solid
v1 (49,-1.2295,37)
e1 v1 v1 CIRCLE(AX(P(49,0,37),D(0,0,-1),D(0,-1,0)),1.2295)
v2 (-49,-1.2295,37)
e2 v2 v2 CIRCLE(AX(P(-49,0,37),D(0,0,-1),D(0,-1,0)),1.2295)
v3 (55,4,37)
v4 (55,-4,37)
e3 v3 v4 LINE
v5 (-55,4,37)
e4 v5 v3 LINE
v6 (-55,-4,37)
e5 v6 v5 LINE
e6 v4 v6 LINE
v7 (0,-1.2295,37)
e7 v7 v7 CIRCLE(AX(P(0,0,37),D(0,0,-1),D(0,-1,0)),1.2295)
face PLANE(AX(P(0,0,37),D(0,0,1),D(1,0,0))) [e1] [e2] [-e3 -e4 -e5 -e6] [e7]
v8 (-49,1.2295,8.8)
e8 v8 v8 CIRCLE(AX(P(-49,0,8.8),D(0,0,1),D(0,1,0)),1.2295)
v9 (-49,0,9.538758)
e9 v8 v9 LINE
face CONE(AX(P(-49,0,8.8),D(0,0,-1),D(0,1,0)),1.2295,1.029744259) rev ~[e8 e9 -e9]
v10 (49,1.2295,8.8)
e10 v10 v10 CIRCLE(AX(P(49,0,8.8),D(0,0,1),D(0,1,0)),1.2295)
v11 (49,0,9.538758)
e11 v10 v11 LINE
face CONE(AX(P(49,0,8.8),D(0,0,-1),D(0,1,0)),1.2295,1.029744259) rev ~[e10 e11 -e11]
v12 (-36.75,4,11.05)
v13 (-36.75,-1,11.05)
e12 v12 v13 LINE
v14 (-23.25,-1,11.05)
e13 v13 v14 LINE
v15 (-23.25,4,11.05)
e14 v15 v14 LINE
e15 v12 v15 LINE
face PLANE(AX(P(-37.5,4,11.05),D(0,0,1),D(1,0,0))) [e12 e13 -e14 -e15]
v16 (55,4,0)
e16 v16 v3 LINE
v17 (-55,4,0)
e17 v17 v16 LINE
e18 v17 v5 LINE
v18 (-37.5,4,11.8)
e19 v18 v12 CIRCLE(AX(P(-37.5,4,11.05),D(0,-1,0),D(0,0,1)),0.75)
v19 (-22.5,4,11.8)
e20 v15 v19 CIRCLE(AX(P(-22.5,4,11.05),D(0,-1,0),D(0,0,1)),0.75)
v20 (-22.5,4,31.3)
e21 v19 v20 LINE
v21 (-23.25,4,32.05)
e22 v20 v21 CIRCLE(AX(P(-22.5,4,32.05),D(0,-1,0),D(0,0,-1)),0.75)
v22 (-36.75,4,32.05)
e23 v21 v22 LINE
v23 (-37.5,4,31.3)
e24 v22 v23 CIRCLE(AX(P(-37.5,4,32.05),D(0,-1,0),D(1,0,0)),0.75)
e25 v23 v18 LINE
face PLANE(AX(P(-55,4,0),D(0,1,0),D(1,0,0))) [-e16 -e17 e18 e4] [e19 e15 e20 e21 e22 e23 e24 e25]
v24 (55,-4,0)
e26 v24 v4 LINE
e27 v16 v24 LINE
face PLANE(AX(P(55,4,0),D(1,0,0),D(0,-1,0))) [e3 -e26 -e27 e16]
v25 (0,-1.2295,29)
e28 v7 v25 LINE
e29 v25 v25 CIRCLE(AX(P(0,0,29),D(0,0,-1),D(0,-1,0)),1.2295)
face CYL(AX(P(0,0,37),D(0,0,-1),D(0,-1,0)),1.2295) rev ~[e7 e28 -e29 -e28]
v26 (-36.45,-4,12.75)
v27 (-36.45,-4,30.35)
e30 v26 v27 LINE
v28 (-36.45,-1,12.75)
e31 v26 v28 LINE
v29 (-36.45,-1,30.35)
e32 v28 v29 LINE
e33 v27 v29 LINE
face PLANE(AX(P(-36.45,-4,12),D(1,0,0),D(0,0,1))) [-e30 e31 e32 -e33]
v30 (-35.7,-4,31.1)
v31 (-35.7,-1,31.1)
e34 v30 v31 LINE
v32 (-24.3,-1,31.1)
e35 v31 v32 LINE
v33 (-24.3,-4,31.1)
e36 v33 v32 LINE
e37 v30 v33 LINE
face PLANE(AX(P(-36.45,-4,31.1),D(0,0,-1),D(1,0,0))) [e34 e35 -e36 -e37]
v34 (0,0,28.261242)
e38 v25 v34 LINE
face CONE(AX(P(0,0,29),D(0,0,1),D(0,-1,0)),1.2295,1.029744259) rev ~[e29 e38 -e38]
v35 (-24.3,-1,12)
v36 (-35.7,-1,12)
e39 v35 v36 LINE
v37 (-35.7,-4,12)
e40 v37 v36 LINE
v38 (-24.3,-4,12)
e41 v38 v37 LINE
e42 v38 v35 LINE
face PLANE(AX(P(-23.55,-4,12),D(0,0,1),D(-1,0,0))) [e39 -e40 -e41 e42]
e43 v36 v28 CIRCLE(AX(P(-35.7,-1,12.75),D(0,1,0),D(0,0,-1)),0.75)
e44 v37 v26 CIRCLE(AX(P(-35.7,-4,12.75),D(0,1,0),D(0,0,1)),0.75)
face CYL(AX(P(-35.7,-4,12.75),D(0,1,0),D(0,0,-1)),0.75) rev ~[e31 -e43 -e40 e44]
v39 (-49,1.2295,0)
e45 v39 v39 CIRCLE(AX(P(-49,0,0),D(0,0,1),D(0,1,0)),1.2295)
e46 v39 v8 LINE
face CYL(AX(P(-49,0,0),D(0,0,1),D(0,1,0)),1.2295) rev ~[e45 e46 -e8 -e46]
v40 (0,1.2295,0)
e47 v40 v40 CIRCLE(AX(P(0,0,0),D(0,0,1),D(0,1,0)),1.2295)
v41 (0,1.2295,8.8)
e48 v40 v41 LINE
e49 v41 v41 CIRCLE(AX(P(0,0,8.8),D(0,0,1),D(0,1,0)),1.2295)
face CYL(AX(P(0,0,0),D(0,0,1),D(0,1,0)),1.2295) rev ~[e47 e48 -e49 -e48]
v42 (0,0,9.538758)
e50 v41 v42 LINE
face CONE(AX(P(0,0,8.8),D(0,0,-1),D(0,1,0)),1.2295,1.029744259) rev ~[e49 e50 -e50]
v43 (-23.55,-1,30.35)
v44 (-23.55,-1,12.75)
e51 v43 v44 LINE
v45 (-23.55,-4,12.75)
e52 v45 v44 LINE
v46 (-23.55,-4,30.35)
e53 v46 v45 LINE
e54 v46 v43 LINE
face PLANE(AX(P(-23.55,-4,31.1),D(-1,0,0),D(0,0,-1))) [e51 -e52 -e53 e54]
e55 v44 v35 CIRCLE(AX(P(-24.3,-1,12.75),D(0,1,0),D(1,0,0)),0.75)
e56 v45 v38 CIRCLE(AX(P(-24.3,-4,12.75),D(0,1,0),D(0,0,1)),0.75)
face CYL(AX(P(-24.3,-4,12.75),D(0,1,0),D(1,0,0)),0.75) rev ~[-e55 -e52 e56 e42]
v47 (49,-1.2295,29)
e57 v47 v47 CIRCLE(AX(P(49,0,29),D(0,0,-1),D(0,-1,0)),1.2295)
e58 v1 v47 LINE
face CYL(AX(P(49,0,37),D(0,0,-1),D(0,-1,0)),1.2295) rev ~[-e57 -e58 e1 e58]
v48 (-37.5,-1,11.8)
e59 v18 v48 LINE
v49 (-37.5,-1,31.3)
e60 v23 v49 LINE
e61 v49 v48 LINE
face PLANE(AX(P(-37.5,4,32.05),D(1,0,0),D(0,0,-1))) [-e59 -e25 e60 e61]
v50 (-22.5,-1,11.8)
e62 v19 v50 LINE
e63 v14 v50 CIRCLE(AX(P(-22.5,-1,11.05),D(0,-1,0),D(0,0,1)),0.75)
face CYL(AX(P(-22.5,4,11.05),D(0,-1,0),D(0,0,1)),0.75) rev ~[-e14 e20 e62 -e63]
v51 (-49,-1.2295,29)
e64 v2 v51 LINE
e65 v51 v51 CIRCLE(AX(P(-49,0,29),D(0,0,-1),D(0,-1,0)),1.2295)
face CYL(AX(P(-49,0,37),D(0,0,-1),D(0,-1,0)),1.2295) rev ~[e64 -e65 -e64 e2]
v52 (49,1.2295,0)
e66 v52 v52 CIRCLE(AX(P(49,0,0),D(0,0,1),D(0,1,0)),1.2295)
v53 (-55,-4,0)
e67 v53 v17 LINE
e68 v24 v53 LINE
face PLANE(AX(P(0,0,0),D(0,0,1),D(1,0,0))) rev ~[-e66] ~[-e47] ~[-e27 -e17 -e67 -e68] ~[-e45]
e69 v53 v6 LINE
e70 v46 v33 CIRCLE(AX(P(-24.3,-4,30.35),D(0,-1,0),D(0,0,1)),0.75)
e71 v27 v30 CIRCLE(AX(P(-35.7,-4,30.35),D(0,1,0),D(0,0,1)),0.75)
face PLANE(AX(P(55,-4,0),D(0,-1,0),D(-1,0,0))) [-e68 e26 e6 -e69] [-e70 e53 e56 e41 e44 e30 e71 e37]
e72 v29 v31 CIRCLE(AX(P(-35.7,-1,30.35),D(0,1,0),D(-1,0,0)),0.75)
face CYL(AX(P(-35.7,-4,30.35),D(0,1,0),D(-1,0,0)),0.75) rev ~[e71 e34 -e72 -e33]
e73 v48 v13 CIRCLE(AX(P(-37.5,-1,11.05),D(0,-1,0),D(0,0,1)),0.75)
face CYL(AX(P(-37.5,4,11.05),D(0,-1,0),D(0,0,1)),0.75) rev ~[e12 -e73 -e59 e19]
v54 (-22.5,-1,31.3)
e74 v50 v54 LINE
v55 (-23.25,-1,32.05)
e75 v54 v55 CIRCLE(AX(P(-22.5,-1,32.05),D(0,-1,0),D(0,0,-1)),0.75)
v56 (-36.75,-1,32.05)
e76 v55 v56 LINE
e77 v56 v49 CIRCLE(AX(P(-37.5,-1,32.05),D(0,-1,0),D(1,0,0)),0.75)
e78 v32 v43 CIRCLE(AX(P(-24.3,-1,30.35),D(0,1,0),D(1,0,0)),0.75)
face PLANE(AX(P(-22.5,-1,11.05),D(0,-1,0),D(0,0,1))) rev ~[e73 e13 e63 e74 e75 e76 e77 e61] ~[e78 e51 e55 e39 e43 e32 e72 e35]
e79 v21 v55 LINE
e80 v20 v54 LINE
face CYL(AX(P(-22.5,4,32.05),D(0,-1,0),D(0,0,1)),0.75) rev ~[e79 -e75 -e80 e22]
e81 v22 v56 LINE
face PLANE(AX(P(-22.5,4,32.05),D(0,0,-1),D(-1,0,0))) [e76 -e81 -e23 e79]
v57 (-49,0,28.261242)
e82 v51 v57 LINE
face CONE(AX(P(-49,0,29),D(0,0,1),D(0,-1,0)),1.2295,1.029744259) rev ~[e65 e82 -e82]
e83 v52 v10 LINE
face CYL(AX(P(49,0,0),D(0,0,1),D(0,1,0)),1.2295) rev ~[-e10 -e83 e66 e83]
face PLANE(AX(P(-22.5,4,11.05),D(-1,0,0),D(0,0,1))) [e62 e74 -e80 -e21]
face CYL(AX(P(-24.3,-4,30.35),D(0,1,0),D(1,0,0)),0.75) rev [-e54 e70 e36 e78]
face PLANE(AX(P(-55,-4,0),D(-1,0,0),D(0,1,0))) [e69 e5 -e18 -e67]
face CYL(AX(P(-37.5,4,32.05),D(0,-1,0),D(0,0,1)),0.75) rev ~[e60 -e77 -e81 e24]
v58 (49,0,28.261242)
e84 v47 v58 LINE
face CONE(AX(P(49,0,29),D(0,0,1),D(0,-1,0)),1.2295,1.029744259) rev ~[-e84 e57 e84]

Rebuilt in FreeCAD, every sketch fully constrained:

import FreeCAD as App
import Part
import Sketcher

V = App.Vector


def edges_at(feature, points):
    """Names of the edges that pass closest to the given points."""
    edges = feature.Shape.Edges
    near = lambda p: min(range(len(edges)), key=lambda i: edges[i].distToShape(Part.Vertex(*p))[0])
    return sorted({f"Edge{near(p) + 1}" for p in points})

doc = App.newDocument("Part")
body = doc.addObject("PartDesign::Body", "Body")

# Sketch on XY plane
sketch1 = body.newObject("Sketcher::SketchObject", "Sketch")
sketch1.AttachmentSupport = (doc.getObject("XY_Plane"), [""])
sketch1.MapMode = "FlatFace"
sketch1.addGeometry(Part.LineSegment(V(55, 4, 0), V(-55, 4, 0)), False)
sketch1.addGeometry(Part.LineSegment(V(-55, 4, 0), V(-55, -4, 0)), False)
sketch1.addGeometry(Part.LineSegment(V(-55, -4, 0), V(55, -4, 0)), False)
sketch1.addGeometry(Part.LineSegment(V(55, -4, 0), V(55, 4, 0)), False)
sketch1.addConstraint(Sketcher.Constraint("Coincident", 0, 2, 1, 1))
sketch1.addConstraint(Sketcher.Constraint("Coincident", 1, 2, 2, 1))
sketch1.addConstraint(Sketcher.Constraint("Coincident", 2, 2, 3, 1))
sketch1.addConstraint(Sketcher.Constraint("Coincident", 3, 2, 0, 1))
sketch1.addConstraint(Sketcher.Constraint("Horizontal", 0))
sketch1.addConstraint(Sketcher.Constraint("Vertical", 1))
sketch1.addConstraint(Sketcher.Constraint("Horizontal", 2))
sketch1.addConstraint(Sketcher.Constraint("Vertical", 3))
sketch1.addConstraint(Sketcher.Constraint("Symmetric", 0, 2, 2, 2, -1, 1))
sketch1.addConstraint(Sketcher.Constraint("DistanceX", 0, 2, 0, 1, 110.0))
sketch1.addConstraint(Sketcher.Constraint("DistanceY", 1, 2, 1, 1, 8.0))
pad1 = body.newObject("PartDesign::Pad", "Pad")
pad1.Profile = sketch1
pad1.Length = 37

# Sketch on XY plane
sketch2 = body.newObject("Sketcher::SketchObject", "Sketch001")
sketch2.AttachmentSupport = (doc.getObject("XY_Plane"), [""])
sketch2.MapMode = "FlatFace"
sketch2.AttachmentOffset = App.Placement(V(0, 0, 37), App.Rotation())
sketch2.addGeometry(Part.Circle(V(-49, 0, 0), V(0, 0, 1), 1.2), False)
sketch2.addGeometry(Part.Circle(V(0, 0, 0), V(0, 0, 1), 1.2), False)
sketch2.addGeometry(Part.Circle(V(49, 0, 0), V(0, 0, 1), 1.2), False)
sketch2.addConstraint(Sketcher.Constraint("Coincident", 1, 3, -1, 1))
sketch2.addConstraint(Sketcher.Constraint("Equal", 0, 1))
sketch2.addConstraint(Sketcher.Constraint("Equal", 1, 2))
sketch2.addConstraint(Sketcher.Constraint("Symmetric", 0, 3, 2, 3, -1, 1))
sketch2.addConstraint(Sketcher.Constraint("PointOnObject", 0, 3, -1))
sketch2.addConstraint(Sketcher.Constraint("Diameter", 0, 2.459))
sketch2.addConstraint(Sketcher.Constraint("DistanceX", 0, 3, -1, 1, 49.0))
doc.recompute()
hole = body.newObject("PartDesign::Hole", "Hole")
hole.Profile = sketch2
hole.ThreadType = "None"
hole.Diameter = 2.459
hole.DepthType = "Dimension"
hole.Depth = 8
hole.DrillPoint = "Angled"
hole.DrillPointAngle = 118

# Sketch on XY plane
sketch3 = body.newObject("Sketcher::SketchObject", "Sketch002")
sketch3.AttachmentSupport = (doc.getObject("XY_Plane"), [""])
sketch3.MapMode = "FlatFace"
sketch3.addGeometry(Part.Circle(V(49, 0, 0), V(0, 0, 1), 1.2), False)
sketch3.addGeometry(Part.Circle(V(0, 0, 0), V(0, 0, 1), 1.2), False)
sketch3.addGeometry(Part.Circle(V(-49, 0, 0), V(0, 0, 1), 1.2), False)
sketch3.addConstraint(Sketcher.Constraint("Coincident", 1, 3, -1, 1))
sketch3.addConstraint(Sketcher.Constraint("Equal", 0, 1))
sketch3.addConstraint(Sketcher.Constraint("Equal", 1, 2))
sketch3.addConstraint(Sketcher.Constraint("Symmetric", 0, 3, 2, 3, -1, 1))
sketch3.addConstraint(Sketcher.Constraint("PointOnObject", 0, 3, -1))
sketch3.addConstraint(Sketcher.Constraint("Diameter", 0, 2.459))
sketch3.addConstraint(Sketcher.Constraint("DistanceX", -1, 1, 0, 3, 49.0))
doc.recompute()
hole2 = body.newObject("PartDesign::Hole", "Hole001")
hole2.Profile = sketch3
hole2.ThreadType = "None"
hole2.Diameter = 2.459
hole2.DepthType = "Dimension"
hole2.Depth = 8.8
hole2.DrillPoint = "Angled"
hole2.DrillPointAngle = 118
hole2.Reversed = True

# Sketch on XZ plane
sketch4 = body.newObject("Sketcher::SketchObject", "Sketch003")
sketch4.AttachmentSupport = (doc.getObject("XZ_Plane"), [""])
sketch4.MapMode = "FlatFace"
sketch4.AttachmentOffset = App.Placement(V(0, 0, 4), App.Rotation())
sketch4.addGeometry(Part.LineSegment(V(-24, 31, 0), V(-36, 31, 0)), False)
sketch4.addGeometry(Part.LineSegment(V(-36, 31, 0), V(-36, 12, 0)), False)
sketch4.addGeometry(Part.LineSegment(V(-36, 12, 0), V(-24, 12, 0)), False)
sketch4.addGeometry(Part.LineSegment(V(-24, 12, 0), V(-24, 31, 0)), False)
sketch4.addConstraint(Sketcher.Constraint("Coincident", 0, 2, 1, 1))
sketch4.addConstraint(Sketcher.Constraint("Coincident", 1, 2, 2, 1))
sketch4.addConstraint(Sketcher.Constraint("Coincident", 2, 2, 3, 1))
sketch4.addConstraint(Sketcher.Constraint("Coincident", 3, 2, 0, 1))
sketch4.addConstraint(Sketcher.Constraint("Horizontal", 0))
sketch4.addConstraint(Sketcher.Constraint("Vertical", 1))
sketch4.addConstraint(Sketcher.Constraint("Horizontal", 2))
sketch4.addConstraint(Sketcher.Constraint("Vertical", 3))
sketch4.addConstraint(Sketcher.Constraint("DistanceX", 0, 2, 0, 1, 12.9))
sketch4.addConstraint(Sketcher.Constraint("DistanceY", 1, 2, 1, 1, 19.1))
sketch4.addConstraint(Sketcher.Constraint("DistanceY", -1, 1, 1, 2, 12.0))
sketch4.addConstraint(Sketcher.Constraint("DistanceX", 0, 2, -1, 1, 36.45))
pocket1 = body.newObject("PartDesign::Pocket", "Pocket")
pocket1.Profile = sketch4
pocket1.Length = 10
doc.recompute()

fillet = body.newObject("PartDesign::Fillet", "Fillet")
fillet.Base = (pocket1, edges_at(pocket1, [
    (-23.55, 0, 31.1),
    (-36.45, 0, 31.1),
    (-36.45, 0, 12),
    (-23.55, 0, 12),
]))
fillet.Radius = 0.75

# Sketch on XZ plane
sketch5 = body.newObject("Sketcher::SketchObject", "Sketch004")
sketch5.AttachmentSupport = (doc.getObject("XZ_Plane"), [""])
sketch5.MapMode = "FlatFace"
sketch5.AttachmentOffset = App.Placement(V(0, 0, -4), App.Rotation())
sketch5.addGeometry(Part.LineSegment(V(-38, 32, 0), V(-22, 32, 0)), False)
sketch5.addGeometry(Part.LineSegment(V(-22, 32, 0), V(-22, 11, 0)), False)
sketch5.addGeometry(Part.LineSegment(V(-22, 11, 0), V(-38, 11, 0)), False)
sketch5.addGeometry(Part.LineSegment(V(-38, 11, 0), V(-38, 32, 0)), False)
sketch5.addConstraint(Sketcher.Constraint("Coincident", 0, 2, 1, 1))
sketch5.addConstraint(Sketcher.Constraint("Coincident", 1, 2, 2, 1))
sketch5.addConstraint(Sketcher.Constraint("Coincident", 2, 2, 3, 1))
sketch5.addConstraint(Sketcher.Constraint("Coincident", 3, 2, 0, 1))
sketch5.addConstraint(Sketcher.Constraint("Horizontal", 0))
sketch5.addConstraint(Sketcher.Constraint("Vertical", 1))
sketch5.addConstraint(Sketcher.Constraint("Horizontal", 2))
sketch5.addConstraint(Sketcher.Constraint("Vertical", 3))
sketch5.addConstraint(Sketcher.Constraint("DistanceX", 0, 1, 0, 2, 15.0))
sketch5.addConstraint(Sketcher.Constraint("DistanceY", 1, 2, 1, 1, 21.0))
sketch5.addConstraint(Sketcher.Constraint("DistanceX", 0, 2, -1, 1, 22.5))
sketch5.addConstraint(Sketcher.Constraint("DistanceY", -1, 1, 0, 2, 32.05))
pocket2 = body.newObject("PartDesign::Pocket", "Pocket001")
pocket2.Profile = sketch5
pocket2.Length = 5
pocket2.Reversed = True

# Sketch on XZ plane
sketch6 = body.newObject("Sketcher::SketchObject", "Sketch005")
sketch6.AttachmentSupport = (doc.getObject("XZ_Plane"), [""])
sketch6.MapMode = "FlatFace"
sketch6.AttachmentOffset = App.Placement(V(0, 0, -4), App.Rotation())
sketch6.addGeometry(Part.Circle(V(-22.5, 32, 0), V(0, 0, 1), 0.8), False)
sketch6.addGeometry(Part.Circle(V(-37.5, 32, 0), V(0, 0, 1), 0.8), False)
sketch6.addGeometry(Part.Circle(V(-37.5, 11.1, 0), V(0, 0, 1), 0.8), False)
sketch6.addGeometry(Part.Circle(V(-22.5, 11.1, 0), V(0, 0, 1), 0.8), False)
sketch6.addConstraint(Sketcher.Constraint("Equal", 0, 1))
sketch6.addConstraint(Sketcher.Constraint("Equal", 1, 2))
sketch6.addConstraint(Sketcher.Constraint("Equal", 2, 3))
sketch6.addConstraint(Sketcher.Constraint("Horizontal", 0, 3, 1, 3))
sketch6.addConstraint(Sketcher.Constraint("Horizontal", 2, 3, 3, 3))
sketch6.addConstraint(Sketcher.Constraint("Vertical", 1, 3, 2, 3))
sketch6.addConstraint(Sketcher.Constraint("Vertical", 0, 3, 3, 3))
sketch6.addConstraint(Sketcher.Constraint("Diameter", 0, 1.5))
sketch6.addConstraint(Sketcher.Constraint("DistanceX", 1, 3, 0, 3, 15.0))
sketch6.addConstraint(Sketcher.Constraint("DistanceY", 2, 3, 1, 3, 21.0))
sketch6.addConstraint(Sketcher.Constraint("DistanceX", 0, 3, -1, 1, 22.5))
sketch6.addConstraint(Sketcher.Constraint("DistanceY", -1, 1, 0, 3, 32.05))
doc.recompute()
hole3 = body.newObject("PartDesign::Hole", "Hole002")
hole3.Profile = sketch6
hole3.ThreadType = "None"
hole3.Diameter = 1.5
hole3.DepthType = "Dimension"
hole3.Depth = 5
hole3.DrillPoint = "Flat"
hole3.Reversed = True

doc.recompute()
